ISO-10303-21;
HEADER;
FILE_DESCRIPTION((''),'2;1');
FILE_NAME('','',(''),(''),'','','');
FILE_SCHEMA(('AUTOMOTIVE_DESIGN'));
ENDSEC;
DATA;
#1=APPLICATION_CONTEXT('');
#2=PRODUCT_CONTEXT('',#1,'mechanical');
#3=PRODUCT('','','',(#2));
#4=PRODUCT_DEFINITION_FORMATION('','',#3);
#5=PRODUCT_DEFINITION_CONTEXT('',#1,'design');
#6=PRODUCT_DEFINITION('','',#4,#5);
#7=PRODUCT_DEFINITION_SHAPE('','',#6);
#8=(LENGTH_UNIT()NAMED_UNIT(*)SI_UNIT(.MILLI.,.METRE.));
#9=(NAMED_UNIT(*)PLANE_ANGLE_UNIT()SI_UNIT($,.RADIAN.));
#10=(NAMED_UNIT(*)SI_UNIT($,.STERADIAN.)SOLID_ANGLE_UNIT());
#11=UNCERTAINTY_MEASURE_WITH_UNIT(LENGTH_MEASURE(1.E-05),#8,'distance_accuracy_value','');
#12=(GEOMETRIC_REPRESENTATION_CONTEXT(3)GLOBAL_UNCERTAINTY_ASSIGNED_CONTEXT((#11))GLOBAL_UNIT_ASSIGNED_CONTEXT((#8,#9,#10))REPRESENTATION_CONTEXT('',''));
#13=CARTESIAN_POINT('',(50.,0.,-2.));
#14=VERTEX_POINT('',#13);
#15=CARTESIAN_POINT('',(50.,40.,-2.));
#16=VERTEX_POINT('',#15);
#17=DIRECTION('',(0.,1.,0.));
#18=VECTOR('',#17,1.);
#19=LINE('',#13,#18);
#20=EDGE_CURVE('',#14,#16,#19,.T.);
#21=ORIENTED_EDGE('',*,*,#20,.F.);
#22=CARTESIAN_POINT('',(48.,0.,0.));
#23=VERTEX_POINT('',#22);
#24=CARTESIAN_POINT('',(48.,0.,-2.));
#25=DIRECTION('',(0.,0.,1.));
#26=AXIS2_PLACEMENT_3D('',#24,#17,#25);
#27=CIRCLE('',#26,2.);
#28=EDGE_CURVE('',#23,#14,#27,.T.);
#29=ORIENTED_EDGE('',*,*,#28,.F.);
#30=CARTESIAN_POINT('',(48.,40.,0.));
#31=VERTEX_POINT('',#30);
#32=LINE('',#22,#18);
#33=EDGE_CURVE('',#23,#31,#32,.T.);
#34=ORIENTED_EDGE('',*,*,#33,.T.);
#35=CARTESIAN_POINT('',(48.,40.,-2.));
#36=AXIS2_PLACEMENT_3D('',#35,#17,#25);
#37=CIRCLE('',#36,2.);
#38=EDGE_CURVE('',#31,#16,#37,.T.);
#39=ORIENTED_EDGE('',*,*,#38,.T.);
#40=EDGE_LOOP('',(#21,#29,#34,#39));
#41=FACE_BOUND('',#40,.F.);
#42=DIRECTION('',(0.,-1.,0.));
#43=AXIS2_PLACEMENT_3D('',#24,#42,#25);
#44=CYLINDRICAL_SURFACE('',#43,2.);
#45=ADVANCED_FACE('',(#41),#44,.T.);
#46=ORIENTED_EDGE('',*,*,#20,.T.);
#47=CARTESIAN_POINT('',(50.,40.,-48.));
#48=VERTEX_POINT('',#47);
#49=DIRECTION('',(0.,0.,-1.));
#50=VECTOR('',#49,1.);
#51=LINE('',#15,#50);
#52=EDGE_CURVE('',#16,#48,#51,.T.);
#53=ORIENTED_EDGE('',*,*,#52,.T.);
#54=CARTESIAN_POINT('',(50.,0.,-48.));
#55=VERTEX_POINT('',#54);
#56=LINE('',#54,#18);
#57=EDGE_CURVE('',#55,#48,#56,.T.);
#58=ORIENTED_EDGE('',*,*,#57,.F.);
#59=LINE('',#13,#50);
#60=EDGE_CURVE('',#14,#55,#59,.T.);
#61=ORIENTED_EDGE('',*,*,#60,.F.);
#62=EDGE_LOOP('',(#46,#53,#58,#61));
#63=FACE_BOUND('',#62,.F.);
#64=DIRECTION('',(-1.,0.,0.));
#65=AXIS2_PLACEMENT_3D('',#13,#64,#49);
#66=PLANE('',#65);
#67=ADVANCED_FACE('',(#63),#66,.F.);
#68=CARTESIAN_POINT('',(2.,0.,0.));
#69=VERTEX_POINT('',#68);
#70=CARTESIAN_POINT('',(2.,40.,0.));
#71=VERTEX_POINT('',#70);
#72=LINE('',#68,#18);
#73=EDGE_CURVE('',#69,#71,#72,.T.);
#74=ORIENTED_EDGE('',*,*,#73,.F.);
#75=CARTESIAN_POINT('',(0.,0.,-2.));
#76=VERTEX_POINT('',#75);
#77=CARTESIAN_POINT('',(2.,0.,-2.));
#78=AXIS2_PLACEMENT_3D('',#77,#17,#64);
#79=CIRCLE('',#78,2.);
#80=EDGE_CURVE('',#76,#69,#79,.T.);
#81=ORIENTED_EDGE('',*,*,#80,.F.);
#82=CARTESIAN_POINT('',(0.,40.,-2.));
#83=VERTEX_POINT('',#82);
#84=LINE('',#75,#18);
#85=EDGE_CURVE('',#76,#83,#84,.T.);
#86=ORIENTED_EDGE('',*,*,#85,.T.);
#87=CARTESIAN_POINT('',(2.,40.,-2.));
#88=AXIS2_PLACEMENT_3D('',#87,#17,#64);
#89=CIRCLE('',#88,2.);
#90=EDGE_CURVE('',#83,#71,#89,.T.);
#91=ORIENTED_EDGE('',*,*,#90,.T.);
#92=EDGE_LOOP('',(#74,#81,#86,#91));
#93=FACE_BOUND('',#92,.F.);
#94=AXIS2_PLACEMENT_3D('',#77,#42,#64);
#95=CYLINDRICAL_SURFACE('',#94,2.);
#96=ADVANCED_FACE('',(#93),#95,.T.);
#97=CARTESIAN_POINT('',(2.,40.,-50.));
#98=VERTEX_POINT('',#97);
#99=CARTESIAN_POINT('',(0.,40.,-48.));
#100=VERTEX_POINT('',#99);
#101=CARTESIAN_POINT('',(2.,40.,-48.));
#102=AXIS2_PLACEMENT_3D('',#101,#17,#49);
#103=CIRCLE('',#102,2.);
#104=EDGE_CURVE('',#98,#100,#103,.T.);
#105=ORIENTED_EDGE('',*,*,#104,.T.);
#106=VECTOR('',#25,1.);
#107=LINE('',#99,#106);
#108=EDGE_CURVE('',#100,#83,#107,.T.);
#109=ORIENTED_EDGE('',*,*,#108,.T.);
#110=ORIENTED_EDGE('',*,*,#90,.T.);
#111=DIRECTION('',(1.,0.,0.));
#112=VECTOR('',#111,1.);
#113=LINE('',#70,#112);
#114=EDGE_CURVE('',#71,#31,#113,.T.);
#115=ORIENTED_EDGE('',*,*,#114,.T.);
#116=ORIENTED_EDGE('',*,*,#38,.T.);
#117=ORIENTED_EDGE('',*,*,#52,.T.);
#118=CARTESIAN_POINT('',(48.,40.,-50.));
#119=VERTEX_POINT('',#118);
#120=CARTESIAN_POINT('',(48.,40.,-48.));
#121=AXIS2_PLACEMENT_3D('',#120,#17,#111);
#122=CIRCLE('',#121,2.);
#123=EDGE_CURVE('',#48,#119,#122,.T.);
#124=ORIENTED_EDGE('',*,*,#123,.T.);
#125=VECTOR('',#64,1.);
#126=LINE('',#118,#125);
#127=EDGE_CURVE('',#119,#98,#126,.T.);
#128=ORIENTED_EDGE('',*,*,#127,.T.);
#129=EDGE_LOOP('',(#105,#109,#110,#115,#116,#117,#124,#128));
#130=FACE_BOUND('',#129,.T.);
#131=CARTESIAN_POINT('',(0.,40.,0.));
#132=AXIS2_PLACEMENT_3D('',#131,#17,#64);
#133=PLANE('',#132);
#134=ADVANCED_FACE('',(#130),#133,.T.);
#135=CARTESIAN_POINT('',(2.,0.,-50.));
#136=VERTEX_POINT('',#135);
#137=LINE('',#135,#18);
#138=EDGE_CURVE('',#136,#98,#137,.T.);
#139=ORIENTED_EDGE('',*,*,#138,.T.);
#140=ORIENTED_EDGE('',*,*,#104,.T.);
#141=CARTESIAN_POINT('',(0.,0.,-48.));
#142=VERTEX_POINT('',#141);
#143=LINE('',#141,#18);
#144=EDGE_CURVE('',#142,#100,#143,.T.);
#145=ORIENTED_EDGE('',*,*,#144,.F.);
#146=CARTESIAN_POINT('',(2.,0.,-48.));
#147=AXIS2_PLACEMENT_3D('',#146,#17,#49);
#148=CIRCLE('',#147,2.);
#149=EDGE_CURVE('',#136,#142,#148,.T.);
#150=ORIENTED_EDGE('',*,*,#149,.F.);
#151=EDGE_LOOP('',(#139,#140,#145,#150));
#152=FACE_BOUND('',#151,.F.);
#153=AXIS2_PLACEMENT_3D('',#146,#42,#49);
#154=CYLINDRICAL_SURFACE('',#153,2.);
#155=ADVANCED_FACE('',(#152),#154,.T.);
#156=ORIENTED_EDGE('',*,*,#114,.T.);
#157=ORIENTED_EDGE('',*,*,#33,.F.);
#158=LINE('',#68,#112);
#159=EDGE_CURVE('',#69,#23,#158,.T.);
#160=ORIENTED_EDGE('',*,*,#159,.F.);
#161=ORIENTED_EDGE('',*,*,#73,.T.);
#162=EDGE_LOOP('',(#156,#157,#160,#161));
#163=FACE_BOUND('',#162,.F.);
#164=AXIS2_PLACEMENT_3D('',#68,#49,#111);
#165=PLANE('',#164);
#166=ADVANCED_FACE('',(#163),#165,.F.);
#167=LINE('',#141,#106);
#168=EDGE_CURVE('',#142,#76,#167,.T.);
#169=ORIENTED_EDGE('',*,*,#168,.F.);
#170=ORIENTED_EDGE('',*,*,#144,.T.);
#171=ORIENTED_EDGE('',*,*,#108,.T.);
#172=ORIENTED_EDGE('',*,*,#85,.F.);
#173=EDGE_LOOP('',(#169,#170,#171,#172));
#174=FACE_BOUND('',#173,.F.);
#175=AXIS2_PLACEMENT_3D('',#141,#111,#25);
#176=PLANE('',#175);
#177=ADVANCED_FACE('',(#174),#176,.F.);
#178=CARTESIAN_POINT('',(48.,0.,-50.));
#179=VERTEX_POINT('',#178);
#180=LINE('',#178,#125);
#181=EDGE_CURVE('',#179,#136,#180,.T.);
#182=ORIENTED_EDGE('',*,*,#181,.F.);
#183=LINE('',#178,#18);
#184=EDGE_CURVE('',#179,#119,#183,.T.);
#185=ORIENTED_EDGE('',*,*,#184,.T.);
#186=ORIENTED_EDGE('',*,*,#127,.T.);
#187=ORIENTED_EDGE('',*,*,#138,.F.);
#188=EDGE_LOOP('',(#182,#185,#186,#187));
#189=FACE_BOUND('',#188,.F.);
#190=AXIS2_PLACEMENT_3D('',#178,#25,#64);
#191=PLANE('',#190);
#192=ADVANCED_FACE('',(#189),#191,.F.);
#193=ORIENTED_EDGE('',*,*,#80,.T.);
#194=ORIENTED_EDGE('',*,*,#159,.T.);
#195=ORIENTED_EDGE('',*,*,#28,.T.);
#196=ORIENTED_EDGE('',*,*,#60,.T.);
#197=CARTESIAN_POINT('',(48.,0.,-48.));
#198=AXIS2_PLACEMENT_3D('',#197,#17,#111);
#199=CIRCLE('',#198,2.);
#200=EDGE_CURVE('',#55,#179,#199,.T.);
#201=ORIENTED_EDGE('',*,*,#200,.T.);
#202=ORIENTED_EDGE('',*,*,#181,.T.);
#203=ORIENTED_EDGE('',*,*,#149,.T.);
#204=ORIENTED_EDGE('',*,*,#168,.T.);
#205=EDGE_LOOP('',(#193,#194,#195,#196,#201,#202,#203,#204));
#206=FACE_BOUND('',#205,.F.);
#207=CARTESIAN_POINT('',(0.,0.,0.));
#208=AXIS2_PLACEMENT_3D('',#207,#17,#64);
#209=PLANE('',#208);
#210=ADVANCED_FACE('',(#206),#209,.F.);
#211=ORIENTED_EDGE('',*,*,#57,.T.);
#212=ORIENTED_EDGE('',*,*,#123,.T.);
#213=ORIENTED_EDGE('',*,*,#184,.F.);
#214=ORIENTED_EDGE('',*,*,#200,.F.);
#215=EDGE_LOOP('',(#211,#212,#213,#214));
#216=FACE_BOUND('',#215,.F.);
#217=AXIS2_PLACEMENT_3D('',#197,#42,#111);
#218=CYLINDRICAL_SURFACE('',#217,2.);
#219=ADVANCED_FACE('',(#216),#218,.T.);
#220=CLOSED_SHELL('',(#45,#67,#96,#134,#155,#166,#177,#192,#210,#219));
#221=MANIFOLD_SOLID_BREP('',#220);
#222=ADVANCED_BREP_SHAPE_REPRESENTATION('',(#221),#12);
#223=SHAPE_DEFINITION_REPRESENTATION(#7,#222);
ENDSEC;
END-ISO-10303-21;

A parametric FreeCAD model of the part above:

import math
import FreeCAD as App
import Part
import Sketcher
Q = App.Units.Quantity

doc = App.newDocument("Part")
params = doc.addObject("Spreadsheet::Sheet", "Params")
for row, (alias, value) in enumerate([
    ("sketch1_radius", "2 mm"),
    ("pad1_length", "40 mm"),
], start=1):
    params.set(f"A{row}", alias)
    params.set(f"B{row}", "=" + value)
    params.setAlias(f"B{row}", alias)

body = doc.addObject("PartDesign::Body", "Body")

sketch1 = body.newObject("Sketcher::SketchObject", "Sketch")
sketch1.AttachmentSupport = (doc.getObject("XZ_Plane"), [""])
sketch1.MapMode = "FlatFace"
sketch1.addGeometry([
    Part.ArcOfCircle(Part.Circle(App.Vector(2, -2, 0), App.Vector(0, 0, 1), 2), math.radians(90), math.radians(180)),
    Part.LineSegment(App.Vector(2, 0, 0), App.Vector(48, 0, 0)),
    Part.ArcOfCircle(Part.Circle(App.Vector(48, -2, 0), App.Vector(0, 0, 1), 2), math.radians(0), math.radians(90)),
    Part.LineSegment(App.Vector(50, -2, 0), App.Vector(50, -48, 0)),
    Part.ArcOfCircle(Part.Circle(App.Vector(48, -48, 0), App.Vector(0, 0, 1), 2), math.radians(-90), math.radians(0)),
    Part.LineSegment(App.Vector(48, -50, 0), App.Vector(2, -50, 0)),
    Part.ArcOfCircle(Part.Circle(App.Vector(2, -48, 0), App.Vector(0, 0, 1), 2), math.radians(180), math.radians(270)),
    Part.LineSegment(App.Vector(0, -48, 0), App.Vector(0, -2, 0)),
], False)
sketch1.addConstraint([
    Sketcher.Constraint("Tangent", 0, 1, 1, 1),
    Sketcher.Constraint("Tangent", 1, 2, 2, 2),
    Sketcher.Constraint("Tangent", 2, 1, 3, 1),
    Sketcher.Constraint("Tangent", 3, 2, 4, 2),
    Sketcher.Constraint("Tangent", 4, 1, 5, 1),
    Sketcher.Constraint("Tangent", 5, 2, 6, 2),
    Sketcher.Constraint("Tangent", 6, 1, 7, 1),
    Sketcher.Constraint("Tangent", 7, 2, 0, 2),
    Sketcher.Constraint("Horizontal", 1),
    Sketcher.Constraint("Vertical", 3),
    Sketcher.Constraint("Horizontal", 5),
    Sketcher.Constraint("Vertical", 7),
    Sketcher.Constraint("Equal", 0, 2),
    Sketcher.Constraint("Equal", 2, 4),
    Sketcher.Constraint("Equal", 4, 6),
    Sketcher.Constraint("PointOnObject", 0, 1, -1),
    Sketcher.Constraint("PointOnObject", 6, 1, -2),
    Sketcher.Constraint("Equal", 5, 3),
    Sketcher.Constraint("Radius", 0, Q("2 mm")),
    Sketcher.Constraint("DistanceX", -1, 1, 2, 1, Q("50 mm")),
])
sketch1.setExpression("Constraints[18]", "Params.sketch1_radius")
pad1 = body.newObject("PartDesign::Pad", "Pad")
pad1.Profile = sketch1
pad1.setExpression("Length", "Params.pad1_length")
pad1.Reversed = True

doc.recompute()
